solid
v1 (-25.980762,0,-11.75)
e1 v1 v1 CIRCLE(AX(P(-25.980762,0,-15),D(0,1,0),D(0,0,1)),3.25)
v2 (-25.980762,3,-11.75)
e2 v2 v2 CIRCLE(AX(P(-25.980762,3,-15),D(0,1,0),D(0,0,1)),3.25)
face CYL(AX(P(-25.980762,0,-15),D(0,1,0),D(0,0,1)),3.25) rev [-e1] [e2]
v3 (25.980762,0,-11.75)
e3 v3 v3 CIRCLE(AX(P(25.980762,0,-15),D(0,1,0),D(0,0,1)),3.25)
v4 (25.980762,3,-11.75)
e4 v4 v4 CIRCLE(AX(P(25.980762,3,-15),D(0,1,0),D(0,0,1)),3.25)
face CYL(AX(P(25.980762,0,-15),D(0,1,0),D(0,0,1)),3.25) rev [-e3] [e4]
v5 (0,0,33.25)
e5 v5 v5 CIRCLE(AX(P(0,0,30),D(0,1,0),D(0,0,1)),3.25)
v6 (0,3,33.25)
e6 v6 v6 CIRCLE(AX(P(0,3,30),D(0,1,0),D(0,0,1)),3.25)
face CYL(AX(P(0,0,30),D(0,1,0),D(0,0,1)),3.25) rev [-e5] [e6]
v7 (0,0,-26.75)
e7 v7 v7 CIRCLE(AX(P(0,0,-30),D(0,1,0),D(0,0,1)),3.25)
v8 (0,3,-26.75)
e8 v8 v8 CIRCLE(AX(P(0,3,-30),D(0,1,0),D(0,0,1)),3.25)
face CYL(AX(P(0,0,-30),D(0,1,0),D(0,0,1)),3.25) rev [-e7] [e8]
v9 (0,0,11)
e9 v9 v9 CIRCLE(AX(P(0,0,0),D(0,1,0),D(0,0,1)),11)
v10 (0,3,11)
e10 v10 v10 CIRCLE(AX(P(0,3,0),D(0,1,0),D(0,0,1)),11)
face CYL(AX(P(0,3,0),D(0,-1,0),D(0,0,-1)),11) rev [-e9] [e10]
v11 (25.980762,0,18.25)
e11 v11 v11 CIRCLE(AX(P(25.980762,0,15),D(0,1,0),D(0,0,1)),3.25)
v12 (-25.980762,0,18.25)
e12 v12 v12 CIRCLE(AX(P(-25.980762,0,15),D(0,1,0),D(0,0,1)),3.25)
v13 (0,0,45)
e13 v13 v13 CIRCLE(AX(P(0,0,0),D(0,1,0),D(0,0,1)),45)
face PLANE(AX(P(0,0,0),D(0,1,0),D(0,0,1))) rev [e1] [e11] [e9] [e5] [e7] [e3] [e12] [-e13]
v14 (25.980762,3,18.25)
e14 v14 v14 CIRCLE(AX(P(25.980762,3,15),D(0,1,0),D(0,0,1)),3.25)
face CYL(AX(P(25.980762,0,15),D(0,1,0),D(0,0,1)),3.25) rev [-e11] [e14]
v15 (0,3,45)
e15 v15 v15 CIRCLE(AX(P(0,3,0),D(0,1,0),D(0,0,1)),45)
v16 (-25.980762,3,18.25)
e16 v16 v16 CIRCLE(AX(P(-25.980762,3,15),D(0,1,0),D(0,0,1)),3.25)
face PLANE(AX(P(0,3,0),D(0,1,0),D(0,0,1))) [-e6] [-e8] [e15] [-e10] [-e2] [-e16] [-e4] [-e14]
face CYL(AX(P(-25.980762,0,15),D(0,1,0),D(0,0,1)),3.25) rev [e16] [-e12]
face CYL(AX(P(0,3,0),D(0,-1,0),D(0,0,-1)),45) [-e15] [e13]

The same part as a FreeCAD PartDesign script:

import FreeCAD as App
import Part
import Sketcher

V = App.Vector

doc = App.newDocument("Part")
body = doc.addObject("PartDesign::Body", "Body")

sketch1 = doc.addObject("Sketcher::SketchObject", "Sketch")
body.addObject(sketch1)
sketch1.AttachmentSupport = (doc.XZ_Plane, [""])
sketch1.MapMode = "FlatFace"
sketch1.addGeometry([
    Part.Circle(V(0, 0, 0), V(0, 0, 1), 45),
    Part.Circle(V(0, 0, 0), V(0, 0, 1), 11),
], False)
sketch1.addConstraint([
    Sketcher.Constraint("Coincident", 0, 3, -1, 1),
    Sketcher.Constraint("Coincident", 1, 3, -1, 1),
    Sketcher.Constraint("Diameter", 0, 90.0),
    Sketcher.Constraint("Diameter", 1, 22.0),
])
pad1 = doc.addObject("PartDesign::Pad", "Pad")
body.addObject(pad1)
pad1.Profile = sketch1
pad1.Length = 3
pad1.Reversed = True

sketch2 = doc.addObject("Sketcher::SketchObject", "Sketch001")
body.addObject(sketch2)
sketch2.AttachmentSupport = (doc.XZ_Plane, [""])
sketch2.MapMode = "FlatFace"
sketch2.AttachmentOffset = App.Placement(V(0, 0, -3), App.Rotation())
sketch2.addGeometry([
    Part.Circle(V(0, -30, 0), V(0, 0, 1), 3.2),
    Part.Circle(V(26, -15, 0), V(0, 0, 1), 3.2),
    Part.Circle(V(26, 15, 0), V(0, 0, 1), 3.2),
    Part.Circle(V(0, 30, 0), V(0, 0, 1), 3.2),
    Part.Circle(V(-26, 15, 0), V(0, 0, 1), 3.2),
    Part.Circle(V(-26, -15, 0), V(0, 0, 1), 3.2),
], False)
sketch2.addConstraint([
    Sketcher.Constraint("Equal", 0, 1),
    Sketcher.Constraint("Equal", 1, 2),
    Sketcher.Constraint("Equal", 2, 3),
    Sketcher.Constraint("Equal", 3, 4),
    Sketcher.Constraint("Equal", 4, 5),
    Sketcher.Constraint("Symmetric", 0, 3, 3, 3, -1, 1),
    Sketcher.Constraint("Symmetric", 1, 3, 4, 3, -1, 1),
    Sketcher.Constraint("Symmetric", 2, 3, 5, 3, -1, 1),
    Sketcher.Constraint("Symmetric", 2, 3, 4, 3, -2),
    Sketcher.Constraint("PointOnObject", 0, 3, -2),
    Sketcher.Constraint("Diameter", 0, 6.5),
    Sketcher.Constraint("DistanceY", 0, 3, -1, 1, 30.0),
    Sketcher.Constraint("DistanceY", 1, 3, -1, 1, 15.0),
    Sketcher.Constraint("DistanceX", -1, 1, 1, 3, 25.980762),
])
pocket1 = doc.addObject("PartDesign::Pocket", "Pocket")
body.addObject(pocket1)
pocket1.Profile = sketch2
pocket1.Type = "ThroughAll"
pocket1.Reversed = True

doc.recompute()
